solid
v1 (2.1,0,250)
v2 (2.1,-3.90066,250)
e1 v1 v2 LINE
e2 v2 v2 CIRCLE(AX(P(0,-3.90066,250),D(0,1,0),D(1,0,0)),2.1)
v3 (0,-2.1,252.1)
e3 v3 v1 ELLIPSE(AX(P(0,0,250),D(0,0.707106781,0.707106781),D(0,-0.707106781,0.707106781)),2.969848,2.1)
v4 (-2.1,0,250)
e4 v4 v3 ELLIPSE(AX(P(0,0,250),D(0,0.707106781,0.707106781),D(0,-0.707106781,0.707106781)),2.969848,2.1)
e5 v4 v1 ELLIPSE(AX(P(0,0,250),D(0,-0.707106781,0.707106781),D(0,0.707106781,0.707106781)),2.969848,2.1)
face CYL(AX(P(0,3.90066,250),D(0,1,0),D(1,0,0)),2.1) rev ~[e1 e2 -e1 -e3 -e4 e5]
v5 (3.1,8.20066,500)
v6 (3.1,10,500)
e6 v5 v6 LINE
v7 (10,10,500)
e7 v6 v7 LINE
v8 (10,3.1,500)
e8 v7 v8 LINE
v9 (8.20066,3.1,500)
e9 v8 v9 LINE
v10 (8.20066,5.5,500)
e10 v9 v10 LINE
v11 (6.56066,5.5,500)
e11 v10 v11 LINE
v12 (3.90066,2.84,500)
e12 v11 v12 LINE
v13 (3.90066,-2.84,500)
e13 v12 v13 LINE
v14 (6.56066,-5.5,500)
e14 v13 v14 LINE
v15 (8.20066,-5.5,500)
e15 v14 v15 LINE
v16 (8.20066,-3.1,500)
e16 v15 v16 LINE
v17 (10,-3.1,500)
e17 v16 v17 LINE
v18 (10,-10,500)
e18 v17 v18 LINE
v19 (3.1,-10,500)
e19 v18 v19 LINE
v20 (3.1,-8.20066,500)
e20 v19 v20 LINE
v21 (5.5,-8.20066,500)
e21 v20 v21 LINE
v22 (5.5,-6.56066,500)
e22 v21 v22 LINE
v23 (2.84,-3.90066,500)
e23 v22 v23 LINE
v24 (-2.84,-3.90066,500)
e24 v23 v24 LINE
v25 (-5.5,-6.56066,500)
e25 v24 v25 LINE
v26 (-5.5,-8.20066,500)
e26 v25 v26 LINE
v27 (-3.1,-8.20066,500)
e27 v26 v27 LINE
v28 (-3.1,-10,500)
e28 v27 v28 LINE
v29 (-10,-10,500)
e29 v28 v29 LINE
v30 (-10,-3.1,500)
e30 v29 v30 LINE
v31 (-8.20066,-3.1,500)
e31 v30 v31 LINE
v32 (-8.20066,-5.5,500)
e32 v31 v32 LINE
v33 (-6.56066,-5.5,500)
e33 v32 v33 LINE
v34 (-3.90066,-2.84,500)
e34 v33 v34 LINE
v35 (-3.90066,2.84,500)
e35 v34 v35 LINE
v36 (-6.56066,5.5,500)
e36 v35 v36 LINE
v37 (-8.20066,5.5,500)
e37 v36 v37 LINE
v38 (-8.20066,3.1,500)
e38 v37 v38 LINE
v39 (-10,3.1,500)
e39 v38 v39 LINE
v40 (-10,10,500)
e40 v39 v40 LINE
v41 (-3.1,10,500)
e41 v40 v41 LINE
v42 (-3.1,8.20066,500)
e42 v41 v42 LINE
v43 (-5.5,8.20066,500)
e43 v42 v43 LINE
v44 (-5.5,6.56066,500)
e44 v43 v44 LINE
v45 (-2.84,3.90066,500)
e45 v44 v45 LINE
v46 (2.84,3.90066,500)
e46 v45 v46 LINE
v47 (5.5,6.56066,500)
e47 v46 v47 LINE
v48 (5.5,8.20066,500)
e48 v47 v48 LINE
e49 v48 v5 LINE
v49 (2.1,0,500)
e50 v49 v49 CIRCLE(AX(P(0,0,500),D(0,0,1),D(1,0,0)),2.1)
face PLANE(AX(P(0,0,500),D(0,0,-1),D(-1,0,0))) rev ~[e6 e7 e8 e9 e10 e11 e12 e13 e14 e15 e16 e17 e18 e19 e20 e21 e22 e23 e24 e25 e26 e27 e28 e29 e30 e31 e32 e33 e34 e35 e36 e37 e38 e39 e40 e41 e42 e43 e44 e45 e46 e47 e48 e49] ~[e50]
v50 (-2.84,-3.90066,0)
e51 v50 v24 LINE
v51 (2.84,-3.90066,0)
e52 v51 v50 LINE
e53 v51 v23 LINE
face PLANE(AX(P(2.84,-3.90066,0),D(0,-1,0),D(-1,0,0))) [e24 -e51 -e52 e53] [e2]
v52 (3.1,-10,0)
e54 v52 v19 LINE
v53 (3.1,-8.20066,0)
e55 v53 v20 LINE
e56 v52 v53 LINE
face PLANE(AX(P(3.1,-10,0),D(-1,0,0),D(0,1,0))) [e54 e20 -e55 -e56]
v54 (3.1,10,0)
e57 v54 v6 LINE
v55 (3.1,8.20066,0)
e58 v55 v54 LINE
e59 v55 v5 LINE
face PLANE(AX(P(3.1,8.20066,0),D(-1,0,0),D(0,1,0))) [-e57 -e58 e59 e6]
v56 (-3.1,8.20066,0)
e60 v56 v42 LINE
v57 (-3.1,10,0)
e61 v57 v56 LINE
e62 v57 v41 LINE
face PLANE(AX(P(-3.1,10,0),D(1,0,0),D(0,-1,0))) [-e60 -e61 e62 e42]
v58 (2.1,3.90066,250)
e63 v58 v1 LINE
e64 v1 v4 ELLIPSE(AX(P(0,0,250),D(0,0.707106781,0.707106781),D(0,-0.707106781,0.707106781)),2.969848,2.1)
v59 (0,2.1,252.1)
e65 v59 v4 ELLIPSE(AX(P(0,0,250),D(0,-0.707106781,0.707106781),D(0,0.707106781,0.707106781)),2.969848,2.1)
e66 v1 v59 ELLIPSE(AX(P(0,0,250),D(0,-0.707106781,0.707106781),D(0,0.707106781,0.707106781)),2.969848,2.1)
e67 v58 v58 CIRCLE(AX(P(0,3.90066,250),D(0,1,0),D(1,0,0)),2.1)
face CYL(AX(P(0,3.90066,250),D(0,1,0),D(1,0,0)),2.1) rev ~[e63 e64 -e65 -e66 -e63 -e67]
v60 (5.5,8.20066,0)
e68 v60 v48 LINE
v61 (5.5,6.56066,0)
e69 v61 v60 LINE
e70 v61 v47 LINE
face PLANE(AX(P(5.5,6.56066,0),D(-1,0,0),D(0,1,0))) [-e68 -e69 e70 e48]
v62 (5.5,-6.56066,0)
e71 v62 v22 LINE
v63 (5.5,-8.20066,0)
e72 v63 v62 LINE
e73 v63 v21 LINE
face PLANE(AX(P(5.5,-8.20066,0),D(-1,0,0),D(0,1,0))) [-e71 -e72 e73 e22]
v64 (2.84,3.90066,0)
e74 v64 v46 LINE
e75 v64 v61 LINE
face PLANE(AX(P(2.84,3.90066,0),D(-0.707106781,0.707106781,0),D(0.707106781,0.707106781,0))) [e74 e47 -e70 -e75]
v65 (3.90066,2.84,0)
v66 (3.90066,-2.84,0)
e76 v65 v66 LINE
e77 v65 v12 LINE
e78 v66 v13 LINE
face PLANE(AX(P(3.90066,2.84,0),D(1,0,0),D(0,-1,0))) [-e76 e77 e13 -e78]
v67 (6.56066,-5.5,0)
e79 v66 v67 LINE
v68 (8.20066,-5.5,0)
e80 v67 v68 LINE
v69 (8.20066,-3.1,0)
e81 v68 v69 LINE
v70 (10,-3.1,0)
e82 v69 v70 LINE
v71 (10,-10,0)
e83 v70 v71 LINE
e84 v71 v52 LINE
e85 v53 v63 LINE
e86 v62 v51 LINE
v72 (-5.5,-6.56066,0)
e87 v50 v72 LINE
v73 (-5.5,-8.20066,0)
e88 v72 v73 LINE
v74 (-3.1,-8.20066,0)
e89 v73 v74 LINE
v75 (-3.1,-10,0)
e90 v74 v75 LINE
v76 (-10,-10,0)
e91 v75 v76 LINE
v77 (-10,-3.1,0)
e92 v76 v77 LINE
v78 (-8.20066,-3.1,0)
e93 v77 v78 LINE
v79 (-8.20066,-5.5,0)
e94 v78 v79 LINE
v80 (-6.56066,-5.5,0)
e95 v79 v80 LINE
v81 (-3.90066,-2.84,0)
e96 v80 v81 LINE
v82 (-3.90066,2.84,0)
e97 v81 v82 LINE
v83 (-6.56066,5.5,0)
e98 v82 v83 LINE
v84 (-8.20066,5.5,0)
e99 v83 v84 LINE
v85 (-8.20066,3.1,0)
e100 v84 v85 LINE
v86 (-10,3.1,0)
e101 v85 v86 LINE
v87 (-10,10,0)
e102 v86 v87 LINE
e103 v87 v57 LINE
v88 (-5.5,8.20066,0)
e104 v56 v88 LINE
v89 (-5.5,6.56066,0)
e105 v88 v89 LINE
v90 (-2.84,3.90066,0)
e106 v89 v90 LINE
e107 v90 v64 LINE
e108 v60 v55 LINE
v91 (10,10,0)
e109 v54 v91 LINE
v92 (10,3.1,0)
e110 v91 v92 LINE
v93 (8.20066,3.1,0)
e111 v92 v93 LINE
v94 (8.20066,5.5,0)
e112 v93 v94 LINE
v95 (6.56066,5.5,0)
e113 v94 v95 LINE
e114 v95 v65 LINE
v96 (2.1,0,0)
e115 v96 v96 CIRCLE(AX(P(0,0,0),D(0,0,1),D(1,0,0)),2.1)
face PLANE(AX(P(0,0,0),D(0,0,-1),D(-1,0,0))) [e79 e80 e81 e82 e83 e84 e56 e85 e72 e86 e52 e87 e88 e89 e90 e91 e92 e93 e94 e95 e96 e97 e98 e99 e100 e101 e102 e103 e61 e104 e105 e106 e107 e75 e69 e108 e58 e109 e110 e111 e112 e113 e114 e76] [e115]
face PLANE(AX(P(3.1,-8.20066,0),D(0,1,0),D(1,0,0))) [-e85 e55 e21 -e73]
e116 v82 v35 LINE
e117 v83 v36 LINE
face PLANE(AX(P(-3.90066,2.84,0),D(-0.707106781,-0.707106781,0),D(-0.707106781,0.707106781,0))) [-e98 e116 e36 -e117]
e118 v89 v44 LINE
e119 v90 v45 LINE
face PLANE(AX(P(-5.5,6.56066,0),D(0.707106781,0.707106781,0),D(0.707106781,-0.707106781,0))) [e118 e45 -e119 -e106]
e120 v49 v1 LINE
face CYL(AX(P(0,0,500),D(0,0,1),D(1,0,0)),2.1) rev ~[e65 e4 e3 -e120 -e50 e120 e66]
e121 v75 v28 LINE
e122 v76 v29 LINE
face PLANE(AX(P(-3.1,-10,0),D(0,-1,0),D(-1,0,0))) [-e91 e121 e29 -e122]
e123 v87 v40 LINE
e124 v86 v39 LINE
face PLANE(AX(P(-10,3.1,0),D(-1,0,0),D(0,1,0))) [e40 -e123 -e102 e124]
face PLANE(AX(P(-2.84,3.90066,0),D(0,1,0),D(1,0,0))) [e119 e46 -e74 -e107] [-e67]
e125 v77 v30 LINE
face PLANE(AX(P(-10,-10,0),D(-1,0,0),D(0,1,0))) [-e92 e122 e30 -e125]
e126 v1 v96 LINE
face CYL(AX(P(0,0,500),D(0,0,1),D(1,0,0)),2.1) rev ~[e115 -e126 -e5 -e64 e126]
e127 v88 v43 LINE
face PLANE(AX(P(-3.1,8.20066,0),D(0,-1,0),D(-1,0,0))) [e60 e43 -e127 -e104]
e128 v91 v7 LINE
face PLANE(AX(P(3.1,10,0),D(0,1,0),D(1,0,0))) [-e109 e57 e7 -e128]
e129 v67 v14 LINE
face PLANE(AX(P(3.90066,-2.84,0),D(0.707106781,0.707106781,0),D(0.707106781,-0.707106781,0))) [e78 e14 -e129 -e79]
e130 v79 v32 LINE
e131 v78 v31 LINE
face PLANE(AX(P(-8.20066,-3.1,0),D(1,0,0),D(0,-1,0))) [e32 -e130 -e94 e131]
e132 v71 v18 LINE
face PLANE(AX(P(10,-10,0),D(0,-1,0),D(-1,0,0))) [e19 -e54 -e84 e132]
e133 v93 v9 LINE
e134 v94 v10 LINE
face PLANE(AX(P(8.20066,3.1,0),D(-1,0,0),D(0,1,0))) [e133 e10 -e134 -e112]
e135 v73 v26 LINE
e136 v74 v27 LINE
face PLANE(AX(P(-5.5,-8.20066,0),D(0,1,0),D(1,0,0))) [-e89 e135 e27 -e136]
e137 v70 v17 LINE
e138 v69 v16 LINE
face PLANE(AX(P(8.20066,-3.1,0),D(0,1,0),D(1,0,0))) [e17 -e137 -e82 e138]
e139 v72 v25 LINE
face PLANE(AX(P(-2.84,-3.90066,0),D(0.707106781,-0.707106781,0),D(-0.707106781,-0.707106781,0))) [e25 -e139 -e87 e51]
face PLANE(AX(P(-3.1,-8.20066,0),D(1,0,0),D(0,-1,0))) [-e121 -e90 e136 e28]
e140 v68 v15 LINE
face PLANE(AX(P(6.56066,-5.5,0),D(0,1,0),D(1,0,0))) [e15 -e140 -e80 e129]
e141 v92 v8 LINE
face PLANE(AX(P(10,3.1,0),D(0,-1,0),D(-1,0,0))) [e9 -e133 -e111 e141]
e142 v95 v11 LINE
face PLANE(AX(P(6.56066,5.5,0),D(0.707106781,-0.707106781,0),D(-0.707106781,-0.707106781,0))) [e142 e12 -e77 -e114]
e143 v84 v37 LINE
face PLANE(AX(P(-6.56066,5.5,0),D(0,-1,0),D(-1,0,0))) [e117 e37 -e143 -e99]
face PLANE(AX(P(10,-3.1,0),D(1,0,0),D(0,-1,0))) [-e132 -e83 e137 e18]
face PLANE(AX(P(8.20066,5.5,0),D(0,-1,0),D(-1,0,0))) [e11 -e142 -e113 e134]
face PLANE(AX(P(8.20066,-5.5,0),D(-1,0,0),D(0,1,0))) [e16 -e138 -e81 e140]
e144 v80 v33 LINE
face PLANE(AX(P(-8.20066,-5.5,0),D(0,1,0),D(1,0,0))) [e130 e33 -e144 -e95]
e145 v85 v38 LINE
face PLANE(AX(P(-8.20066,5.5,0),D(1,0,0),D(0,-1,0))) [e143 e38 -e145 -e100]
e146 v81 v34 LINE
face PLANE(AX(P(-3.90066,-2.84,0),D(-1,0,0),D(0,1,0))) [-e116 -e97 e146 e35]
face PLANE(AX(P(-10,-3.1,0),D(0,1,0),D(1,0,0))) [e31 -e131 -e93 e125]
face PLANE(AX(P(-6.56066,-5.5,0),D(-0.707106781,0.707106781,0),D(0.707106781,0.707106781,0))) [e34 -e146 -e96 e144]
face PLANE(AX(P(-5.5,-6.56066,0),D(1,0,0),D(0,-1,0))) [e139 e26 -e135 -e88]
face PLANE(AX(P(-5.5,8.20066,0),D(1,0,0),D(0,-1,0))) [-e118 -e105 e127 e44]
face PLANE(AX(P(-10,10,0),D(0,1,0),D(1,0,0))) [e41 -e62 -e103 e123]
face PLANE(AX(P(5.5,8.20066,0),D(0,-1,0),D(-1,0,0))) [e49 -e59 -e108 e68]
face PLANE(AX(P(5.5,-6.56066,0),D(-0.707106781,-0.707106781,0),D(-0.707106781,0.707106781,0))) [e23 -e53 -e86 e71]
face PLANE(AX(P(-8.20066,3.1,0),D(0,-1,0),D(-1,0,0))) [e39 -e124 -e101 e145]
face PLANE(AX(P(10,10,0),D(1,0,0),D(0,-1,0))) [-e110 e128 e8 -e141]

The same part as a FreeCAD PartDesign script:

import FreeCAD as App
import Part
import Sketcher
from FreeCAD import Vector

doc = App.newDocument("Part")
params = doc.addObject("Spreadsheet::Sheet", "Params")
for row, (alias, value) in enumerate([
    ("sketch1_width", "6.9 mm"),
    ("sketch1_width2", "2.4 mm"),
    ("sketch1_width3", "1.64 mm"),
    ("sketch1_width4", "5.68 mm"),
    ("pad1_length", "500 mm"),
    ("sketch2_diameter", "4.2 mm"),
    ("sketch3_diameter", "4.2 mm"),
], start=1):
    params.set(f"A{row}", alias)
    params.set(f"B{row}", "=" + value)
    params.setAlias(f"B{row}", alias)

body = doc.addObject("PartDesign::Body", "Body")

sketch1 = body.newObject("Sketcher::SketchObject", "Sketch")
sketch1.AttachmentSupport = (doc.getObject("XY_Plane"), [""])
sketch1.MapMode = "FlatFace"
sketch1.addGeometry([
    Part.LineSegment(Vector(-3.1, 8.20066, 0), Vector(-3.1, 10, 0)),
    Part.LineSegment(Vector(-3.1, 10, 0), Vector(-10, 10, 0)),
    Part.LineSegment(Vector(-10, 10, 0), Vector(-10, 3.1, 0)),
    Part.LineSegment(Vector(-10, 3.1, 0), Vector(-8.20066, 3.1, 0)),
    Part.LineSegment(Vector(-8.20066, 3.1, 0), Vector(-8.20066, 5.5, 0)),
    Part.LineSegment(Vector(-8.20066, 5.5, 0), Vector(-6.56066, 5.5, 0)),
    Part.LineSegment(Vector(-6.56066, 5.5, 0), Vector(-3.90066, 2.84, 0)),
    Part.LineSegment(Vector(-3.90066, 2.84, 0), Vector(-3.90066, -2.84, 0)),
    Part.LineSegment(Vector(-3.90066, -2.84, 0), Vector(-6.56066, -5.5, 0)),
    Part.LineSegment(Vector(-6.56066, -5.5, 0), Vector(-8.20066, -5.5, 0)),
    Part.LineSegment(Vector(-8.20066, -5.5, 0), Vector(-8.20066, -3.1, 0)),
    Part.LineSegment(Vector(-8.20066, -3.1, 0), Vector(-10, -3.1, 0)),
    Part.LineSegment(Vector(-10, -3.1, 0), Vector(-10, -10, 0)),
    Part.LineSegment(Vector(-10, -10, 0), Vector(-3.1, -10, 0)),
    Part.LineSegment(Vector(-3.1, -10, 0), Vector(-3.1, -8.20066, 0)),
    Part.LineSegment(Vector(-3.1, -8.20066, 0), Vector(-5.5, -8.20066, 0)),
    Part.LineSegment(Vector(-5.5, -8.20066, 0), Vector(-5.5, -6.56066, 0)),
    Part.LineSegment(Vector(-5.5, -6.56066, 0), Vector(-2.84, -3.90066, 0)),
    Part.LineSegment(Vector(-2.84, -3.90066, 0), Vector(2.84, -3.90066, 0)),
    Part.LineSegment(Vector(2.84, -3.90066, 0), Vector(5.5, -6.56066, 0)),
    Part.LineSegment(Vector(5.5, -6.56066, 0), Vector(5.5, -8.20066, 0)),
    Part.LineSegment(Vector(5.5, -8.20066, 0), Vector(3.1, -8.20066, 0)),
    Part.LineSegment(Vector(3.1, -8.20066, 0), Vector(3.1, -10, 0)),
    Part.LineSegment(Vector(3.1, -10, 0), Vector(10, -10, 0)),
    Part.LineSegment(Vector(10, -10, 0), Vector(10, -3.1, 0)),
    Part.LineSegment(Vector(10, -3.1, 0), Vector(8.20066, -3.1, 0)),
    Part.LineSegment(Vector(8.20066, -3.1, 0), Vector(8.20066, -5.5, 0)),
    Part.LineSegment(Vector(8.20066, -5.5, 0), Vector(6.56066, -5.5, 0)),
    Part.LineSegment(Vector(6.56066, -5.5, 0), Vector(3.90066, -2.84, 0)),
    Part.LineSegment(Vector(3.90066, -2.84, 0), Vector(3.90066, 2.84, 0)),
    Part.LineSegment(Vector(3.90066, 2.84, 0), Vector(6.56066, 5.5, 0)),
    Part.LineSegment(Vector(6.56066, 5.5, 0), Vector(8.20066, 5.5, 0)),
    Part.LineSegment(Vector(8.20066, 5.5, 0), Vector(8.20066, 3.1, 0)),
    Part.LineSegment(Vector(8.20066, 3.1, 0), Vector(10, 3.1, 0)),
    Part.LineSegment(Vector(10, 3.1, 0), Vector(10, 10, 0)),
    Part.LineSegment(Vector(10, 10, 0), Vector(3.1, 10, 0)),
    Part.LineSegment(Vector(3.1, 10, 0), Vector(3.1, 8.20066, 0)),
    Part.LineSegment(Vector(3.1, 8.20066, 0), Vector(5.5, 8.20066, 0)),
    Part.LineSegment(Vector(5.5, 8.20066, 0), Vector(5.5, 6.56066, 0)),
    Part.LineSegment(Vector(5.5, 6.56066, 0), Vector(2.84, 3.90066, 0)),
    Part.LineSegment(Vector(2.84, 3.90066, 0), Vector(-2.84, 3.90066, 0)),
    Part.LineSegment(Vector(-2.84, 3.90066, 0), Vector(-5.5, 6.56066, 0)),
    Part.LineSegment(Vector(-5.5, 6.56066, 0), Vector(-5.5, 8.20066, 0)),
    Part.LineSegment(Vector(-5.5, 8.20066, 0), Vector(-3.1, 8.20066, 0)),
], False)
sketch1.addConstraint([
    Sketcher.Constraint("Coincident", 0, 2, 1, 1),
    Sketcher.Constraint("Coincident", 1, 2, 2, 1),
    Sketcher.Constraint("Coincident", 2, 2, 3, 1),
    Sketcher.Constraint("Coincident", 3, 2, 4, 1),
    Sketcher.Constraint("Coincident", 4, 2, 5, 1),
    Sketcher.Constraint("Coincident", 5, 2, 6, 1),
    Sketcher.Constraint("Coincident", 6, 2, 7, 1),
    Sketcher.Constraint("Coincident", 7, 2, 8, 1),
    Sketcher.Constraint("Coincident", 8, 2, 9, 1),
    Sketcher.Constraint("Coincident", 9, 2, 10, 1),
    Sketcher.Constraint("Coincident", 10, 2, 11, 1),
    Sketcher.Constraint("Coincident", 11, 2, 12, 1),
    Sketcher.Constraint("Coincident", 12, 2, 13, 1),
    Sketcher.Constraint("Coincident", 13, 2, 14, 1),
    Sketcher.Constraint("Coincident", 14, 2, 15, 1),
    Sketcher.Constraint("Coincident", 15, 2, 16, 1),
    Sketcher.Constraint("Coincident", 16, 2, 17, 1),
    Sketcher.Constraint("Coincident", 17, 2, 18, 1),
    Sketcher.Constraint("Coincident", 18, 2, 19, 1),
    Sketcher.Constraint("Coincident", 19, 2, 20, 1),
    Sketcher.Constraint("Coincident", 20, 2, 21, 1),
    Sketcher.Constraint("Coincident", 21, 2, 22, 1),
    Sketcher.Constraint("Coincident", 22, 2, 23, 1),
    Sketcher.Constraint("Coincident", 23, 2, 24, 1),
    Sketcher.Constraint("Coincident", 24, 2, 25, 1),
    Sketcher.Constraint("Coincident", 25, 2, 26, 1),
    Sketcher.Constraint("Coincident", 26, 2, 27, 1),
    Sketcher.Constraint("Coincident", 27, 2, 28, 1),
    Sketcher.Constraint("Coincident", 28, 2, 29, 1),
    Sketcher.Constraint("Coincident", 29, 2, 30, 1),
    Sketcher.Constraint("Coincident", 30, 2, 31, 1),
    Sketcher.Constraint("Coincident", 31, 2, 32, 1),
    Sketcher.Constraint("Coincident", 32, 2, 33, 1),
    Sketcher.Constraint("Coincident", 33, 2, 34, 1),
    Sketcher.Constraint("Coincident", 34, 2, 35, 1),
    Sketcher.Constraint("Coincident", 35, 2, 36, 1),
    Sketcher.Constraint("Coincident", 36, 2, 37, 1),
    Sketcher.Constraint("Coincident", 37, 2, 38, 1),
    Sketcher.Constraint("Coincident", 38, 2, 39, 1),
    Sketcher.Constraint("Coincident", 39, 2, 40, 1),
    Sketcher.Constraint("Coincident", 40, 2, 41, 1),
    Sketcher.Constraint("Coincident", 41, 2, 42, 1),
    Sketcher.Constraint("Coincident", 42, 2, 43, 1),
    Sketcher.Constraint("Coincident", 43, 2, 0, 1),
    Sketcher.Constraint("Vertical", 0),
    Sketcher.Constraint("Horizontal", 1),
    Sketcher.Constraint("Vertical", 2),
    Sketcher.Constraint("Horizontal", 3),
    Sketcher.Constraint("Vertical", 4),
    Sketcher.Constraint("Horizontal", 5),
    Sketcher.Constraint("Vertical", 7),
    Sketcher.Constraint("Horizontal", 9),
    Sketcher.Constraint("Vertical", 10),
    Sketcher.Constraint("Horizontal", 11),
    Sketcher.Constraint("Vertical", 12),
    Sketcher.Constraint("Horizontal", 13),
    Sketcher.Constraint("Vertical", 14),
    Sketcher.Constraint("Horizontal", 15),
    Sketcher.Constraint("Vertical", 16),
    Sketcher.Constraint("Horizontal", 18),
    Sketcher.Constraint("Vertical", 20),
    Sketcher.Constraint("Horizontal", 21),
    Sketcher.Constraint("Vertical", 22),
    Sketcher.Constraint("Horizontal", 23),
    Sketcher.Constraint("Vertical", 24),
    Sketcher.Constraint("Horizontal", 25),
    Sketcher.Constraint("Vertical", 26),
    Sketcher.Constraint("Horizontal", 27),
    Sketcher.Constraint("Vertical", 29),
    Sketcher.Constraint("Horizontal", 31),
    Sketcher.Constraint("Vertical", 32),
    Sketcher.Constraint("Horizontal", 33),
    Sketcher.Constraint("Vertical", 34),
    Sketcher.Constraint("Horizontal", 35),
    Sketcher.Constraint("Vertical", 36),
    Sketcher.Constraint("Horizontal", 37),
    Sketcher.Constraint("Vertical", 38),
    Sketcher.Constraint("Horizontal", 40),
    Sketcher.Constraint("Vertical", 42),
    Sketcher.Constraint("Horizontal", 43),
    Sketcher.Constraint("Symmetric", 0, 2, 22, 2, -1, 1),
    Sketcher.Constraint("Symmetric", 2, 2, 24, 2, -1, 1),
    Sketcher.Constraint("Symmetric", 4, 2, 26, 2, -1, 1),
    Sketcher.Constraint("Symmetric", 6, 2, 28, 2, -1, 1),
    Sketcher.Constraint("Symmetric", 8, 2, 30, 2, -1, 1),
    Sketcher.Constraint("Symmetric", 10, 2, 32, 2, -1, 1),
    Sketcher.Constraint("Symmetric", 12, 2, 34, 2, -1, 1),
    Sketcher.Constraint("Symmetric", 14, 2, 36, 2, -1, 1),
    Sketcher.Constraint("Symmetric", 16, 2, 38, 2, -1, 1),
    Sketcher.Constraint("Symmetric", 17, 2, 39, 2, -1, 1),
    Sketcher.Constraint("Symmetric", 19, 2, 41, 2, -1, 1),
    Sketcher.Constraint("Symmetric", 16, 2, 19, 2, -2),
    Sketcher.Constraint("Symmetric", 14, 2, 21, 2, -2),
    Sketcher.Constraint("Symmetric", 12, 2, 23, 2, -2),
    Sketcher.Constraint("Symmetric", 10, 2, 25, 2, -2),
    Sketcher.Constraint("Symmetric", 8, 2, 27, 2, -2),
    Sketcher.Constraint("Perpendicular", 6, 8),
    Sketcher.Constraint("Parallel", 8, 17),
    Sketcher.Constraint("Perpendicular", 17, 19),
    Sketcher.Constraint("Parallel", 19, 28),
    Sketcher.Constraint("Perpendicular", 28, 30),
    Sketcher.Constraint("Perpendicular", 39, 41),
    Sketcher.Constraint("Horizontal", 7, 2, 28, 2),
    Sketcher.Constraint("Horizontal", 37, 2, 42, 2),
    Sketcher.Constraint("Equal", 33, 0),
    Sketcher.Constraint("Equal", 35, 2),
    Sketcher.Constraint("Equal", 43, 4),
    Sketcher.Constraint("Equal", 40, 7),
    Sketcher.Constraint("Equal", 31, 16),
    Sketcher.Constraint("Equal", 8, 17),
    Sketcher.Constraint("DistanceX", 1, 2, 1, 1, 6.9),
    Sketcher.Constraint("DistanceX", 15, 2, 15, 1, 2.4),
    Sketcher.Constraint("DistanceY", -1, 1, 0, 2, 10.0),
    Sketcher.Constraint("DistanceX", 5, 1, 5, 2, 1.64),
    Sketcher.Constraint("DistanceX", 18, 1, 18, 2, 5.68),
    Sketcher.Constraint("DistanceX", 3, 1, 3, 2, 1.79934),
])
sketch1.setExpression("Constraints[110]", "Params.sketch1_width")
sketch1.setExpression("Constraints[111]", "Params.sketch1_width2")
sketch1.setExpression("Constraints[113]", "Params.sketch1_width3")
sketch1.setExpression("Constraints[114]", "Params.sketch1_width4")
pad1 = body.newObject("PartDesign::Pad", "Pad")
pad1.Profile = sketch1
pad1.setExpression("Length", "Params.pad1_length")

sketch2 = body.newObject("Sketcher::SketchObject", "Sketch001")
sketch2.AttachmentSupport = (doc.getObject("XY_Plane"), [""])
sketch2.MapMode = "FlatFace"
sketch2.AttachmentOffset = App.Placement(Vector(0, 0, 500), App.Rotation())
sketch2.addGeometry(Part.Circle(Vector(0, 0, 0), Vector(0, 0, 1), 2.1), False)
sketch2.addConstraint([
    Sketcher.Constraint("Coincident", 0, 3, -1, 1),
    Sketcher.Constraint("Diameter", 0, 4.2),
])
sketch2.setExpression("Constraints[1]", "Params.sketch2_diameter")
pocket1 = body.newObject("PartDesign::Pocket", "Pocket")
pocket1.Profile = sketch2
pocket1.Type = "ThroughAll"

sketch3 = body.newObject("Sketcher::SketchObject", "Sketch002")
sketch3.AttachmentSupport = (doc.getObject("XZ_Plane"), [""])
sketch3.MapMode = "FlatFace"
sketch3.AttachmentOffset = App.Placement(Vector(0, 0, -3.90066), App.Rotation())
sketch3.addGeometry(Part.Circle(Vector(0, 250, 0), Vector(0, 0, 1), 2.1), False)
sketch3.addConstraint([
    Sketcher.Constraint("PointOnObject", 0, 3, -2),
    Sketcher.Constraint("Diameter", 0, 4.2),
    Sketcher.Constraint("DistanceY", -1, 1, 0, 3, 250.0),
])
sketch3.setExpression("Constraints[1]", "Params.sketch3_diameter")
pocket2 = body.newObject("PartDesign::Pocket", "Pocket001")
pocket2.Profile = sketch3
pocket2.Type = "ThroughAll"
pocket2.Reversed = True

doc.recompute()
